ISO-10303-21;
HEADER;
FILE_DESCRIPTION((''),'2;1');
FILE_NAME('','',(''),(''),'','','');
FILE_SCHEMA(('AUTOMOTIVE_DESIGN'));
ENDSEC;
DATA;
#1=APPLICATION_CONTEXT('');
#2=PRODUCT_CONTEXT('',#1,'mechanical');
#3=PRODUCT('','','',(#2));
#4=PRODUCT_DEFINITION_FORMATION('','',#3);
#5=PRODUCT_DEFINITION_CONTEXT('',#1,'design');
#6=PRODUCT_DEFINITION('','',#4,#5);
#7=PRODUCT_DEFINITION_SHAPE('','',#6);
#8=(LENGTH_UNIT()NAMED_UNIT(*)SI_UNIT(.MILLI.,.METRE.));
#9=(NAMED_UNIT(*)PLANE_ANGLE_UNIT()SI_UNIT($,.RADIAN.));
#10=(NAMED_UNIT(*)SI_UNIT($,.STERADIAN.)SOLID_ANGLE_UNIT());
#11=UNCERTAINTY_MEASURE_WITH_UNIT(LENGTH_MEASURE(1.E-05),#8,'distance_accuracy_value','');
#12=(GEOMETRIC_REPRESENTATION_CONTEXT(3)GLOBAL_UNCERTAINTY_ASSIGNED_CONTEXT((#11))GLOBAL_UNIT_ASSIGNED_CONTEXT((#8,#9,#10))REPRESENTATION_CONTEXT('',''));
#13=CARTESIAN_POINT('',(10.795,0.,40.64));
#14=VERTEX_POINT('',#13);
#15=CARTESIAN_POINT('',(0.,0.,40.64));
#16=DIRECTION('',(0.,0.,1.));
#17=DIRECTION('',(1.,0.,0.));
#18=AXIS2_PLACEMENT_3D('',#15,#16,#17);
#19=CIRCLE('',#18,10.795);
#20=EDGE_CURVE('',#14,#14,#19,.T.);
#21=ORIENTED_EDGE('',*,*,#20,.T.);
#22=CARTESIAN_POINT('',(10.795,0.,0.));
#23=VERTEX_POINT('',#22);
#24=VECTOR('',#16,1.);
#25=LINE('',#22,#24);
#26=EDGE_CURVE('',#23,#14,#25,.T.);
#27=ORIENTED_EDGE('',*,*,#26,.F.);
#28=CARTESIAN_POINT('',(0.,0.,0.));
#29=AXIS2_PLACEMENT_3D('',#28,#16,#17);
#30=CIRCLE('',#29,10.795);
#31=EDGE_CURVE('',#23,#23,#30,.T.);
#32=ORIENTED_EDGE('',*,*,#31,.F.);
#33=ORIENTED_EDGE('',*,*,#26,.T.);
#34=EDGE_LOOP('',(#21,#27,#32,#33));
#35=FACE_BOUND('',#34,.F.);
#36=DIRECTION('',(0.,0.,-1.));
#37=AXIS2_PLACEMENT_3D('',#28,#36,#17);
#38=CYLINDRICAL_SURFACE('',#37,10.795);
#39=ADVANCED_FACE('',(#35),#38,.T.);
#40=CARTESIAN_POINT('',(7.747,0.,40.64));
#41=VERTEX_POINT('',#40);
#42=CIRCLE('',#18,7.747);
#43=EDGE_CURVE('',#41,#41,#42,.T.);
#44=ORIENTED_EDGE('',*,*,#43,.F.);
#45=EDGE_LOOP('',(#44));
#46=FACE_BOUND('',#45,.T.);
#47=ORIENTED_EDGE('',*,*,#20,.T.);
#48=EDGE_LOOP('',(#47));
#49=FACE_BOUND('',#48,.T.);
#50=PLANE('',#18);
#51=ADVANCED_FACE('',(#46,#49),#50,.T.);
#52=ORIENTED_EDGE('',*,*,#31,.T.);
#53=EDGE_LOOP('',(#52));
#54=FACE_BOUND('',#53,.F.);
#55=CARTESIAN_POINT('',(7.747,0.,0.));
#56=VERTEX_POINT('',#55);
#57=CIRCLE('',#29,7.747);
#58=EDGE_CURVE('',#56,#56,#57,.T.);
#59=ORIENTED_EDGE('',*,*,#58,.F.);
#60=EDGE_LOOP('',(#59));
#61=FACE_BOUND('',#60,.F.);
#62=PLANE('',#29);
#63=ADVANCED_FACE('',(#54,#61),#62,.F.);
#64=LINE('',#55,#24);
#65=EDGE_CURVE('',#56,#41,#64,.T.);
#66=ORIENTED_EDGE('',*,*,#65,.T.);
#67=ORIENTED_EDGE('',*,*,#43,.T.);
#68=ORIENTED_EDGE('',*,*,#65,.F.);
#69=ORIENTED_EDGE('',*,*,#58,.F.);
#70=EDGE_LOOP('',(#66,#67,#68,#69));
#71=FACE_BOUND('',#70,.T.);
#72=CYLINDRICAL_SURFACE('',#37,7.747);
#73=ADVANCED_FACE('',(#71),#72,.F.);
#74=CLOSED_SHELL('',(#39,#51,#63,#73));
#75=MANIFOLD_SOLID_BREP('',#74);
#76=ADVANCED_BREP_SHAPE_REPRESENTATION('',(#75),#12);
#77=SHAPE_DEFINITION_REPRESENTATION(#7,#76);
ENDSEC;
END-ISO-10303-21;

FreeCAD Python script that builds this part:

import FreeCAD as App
import Part
import Sketcher
from FreeCAD import Vector
Q = App.Units.Quantity

doc = App.newDocument("Part")
body = doc.addObject("PartDesign::Body", "Body")

# Sketch on XY plane
sketch1 = body.newObject("Sketcher::SketchObject", "Sketch")
sketch1.AttachmentSupport = (doc.getObject("XY_Plane"), [""])
sketch1.MapMode = "FlatFace"
sketch1.addGeometry(Part.Circle(Vector(0, 0, 0), Vector(0, 0, 1), 11), False)
sketch1.addGeometry(Part.Circle(Vector(0, 0, 0), Vector(0, 0, 1), 8), False)
sketch1.addConstraint(Sketcher.Constraint("Coincident", 0, 3, -1, 1))
sketch1.addConstraint(Sketcher.Constraint("Coincident", 1, 3, -1, 1))
sketch1.addConstraint(Sketcher.Constraint("Diameter", 0, Q("0.85 in")))
sketch1.addConstraint(Sketcher.Constraint("Diameter", 1, Q("0.61 in")))
pad1 = body.newObject("PartDesign::Pad", "Pad")
pad1.Profile = sketch1
pad1.Length = Q("1.6 in")

doc.recompute()
